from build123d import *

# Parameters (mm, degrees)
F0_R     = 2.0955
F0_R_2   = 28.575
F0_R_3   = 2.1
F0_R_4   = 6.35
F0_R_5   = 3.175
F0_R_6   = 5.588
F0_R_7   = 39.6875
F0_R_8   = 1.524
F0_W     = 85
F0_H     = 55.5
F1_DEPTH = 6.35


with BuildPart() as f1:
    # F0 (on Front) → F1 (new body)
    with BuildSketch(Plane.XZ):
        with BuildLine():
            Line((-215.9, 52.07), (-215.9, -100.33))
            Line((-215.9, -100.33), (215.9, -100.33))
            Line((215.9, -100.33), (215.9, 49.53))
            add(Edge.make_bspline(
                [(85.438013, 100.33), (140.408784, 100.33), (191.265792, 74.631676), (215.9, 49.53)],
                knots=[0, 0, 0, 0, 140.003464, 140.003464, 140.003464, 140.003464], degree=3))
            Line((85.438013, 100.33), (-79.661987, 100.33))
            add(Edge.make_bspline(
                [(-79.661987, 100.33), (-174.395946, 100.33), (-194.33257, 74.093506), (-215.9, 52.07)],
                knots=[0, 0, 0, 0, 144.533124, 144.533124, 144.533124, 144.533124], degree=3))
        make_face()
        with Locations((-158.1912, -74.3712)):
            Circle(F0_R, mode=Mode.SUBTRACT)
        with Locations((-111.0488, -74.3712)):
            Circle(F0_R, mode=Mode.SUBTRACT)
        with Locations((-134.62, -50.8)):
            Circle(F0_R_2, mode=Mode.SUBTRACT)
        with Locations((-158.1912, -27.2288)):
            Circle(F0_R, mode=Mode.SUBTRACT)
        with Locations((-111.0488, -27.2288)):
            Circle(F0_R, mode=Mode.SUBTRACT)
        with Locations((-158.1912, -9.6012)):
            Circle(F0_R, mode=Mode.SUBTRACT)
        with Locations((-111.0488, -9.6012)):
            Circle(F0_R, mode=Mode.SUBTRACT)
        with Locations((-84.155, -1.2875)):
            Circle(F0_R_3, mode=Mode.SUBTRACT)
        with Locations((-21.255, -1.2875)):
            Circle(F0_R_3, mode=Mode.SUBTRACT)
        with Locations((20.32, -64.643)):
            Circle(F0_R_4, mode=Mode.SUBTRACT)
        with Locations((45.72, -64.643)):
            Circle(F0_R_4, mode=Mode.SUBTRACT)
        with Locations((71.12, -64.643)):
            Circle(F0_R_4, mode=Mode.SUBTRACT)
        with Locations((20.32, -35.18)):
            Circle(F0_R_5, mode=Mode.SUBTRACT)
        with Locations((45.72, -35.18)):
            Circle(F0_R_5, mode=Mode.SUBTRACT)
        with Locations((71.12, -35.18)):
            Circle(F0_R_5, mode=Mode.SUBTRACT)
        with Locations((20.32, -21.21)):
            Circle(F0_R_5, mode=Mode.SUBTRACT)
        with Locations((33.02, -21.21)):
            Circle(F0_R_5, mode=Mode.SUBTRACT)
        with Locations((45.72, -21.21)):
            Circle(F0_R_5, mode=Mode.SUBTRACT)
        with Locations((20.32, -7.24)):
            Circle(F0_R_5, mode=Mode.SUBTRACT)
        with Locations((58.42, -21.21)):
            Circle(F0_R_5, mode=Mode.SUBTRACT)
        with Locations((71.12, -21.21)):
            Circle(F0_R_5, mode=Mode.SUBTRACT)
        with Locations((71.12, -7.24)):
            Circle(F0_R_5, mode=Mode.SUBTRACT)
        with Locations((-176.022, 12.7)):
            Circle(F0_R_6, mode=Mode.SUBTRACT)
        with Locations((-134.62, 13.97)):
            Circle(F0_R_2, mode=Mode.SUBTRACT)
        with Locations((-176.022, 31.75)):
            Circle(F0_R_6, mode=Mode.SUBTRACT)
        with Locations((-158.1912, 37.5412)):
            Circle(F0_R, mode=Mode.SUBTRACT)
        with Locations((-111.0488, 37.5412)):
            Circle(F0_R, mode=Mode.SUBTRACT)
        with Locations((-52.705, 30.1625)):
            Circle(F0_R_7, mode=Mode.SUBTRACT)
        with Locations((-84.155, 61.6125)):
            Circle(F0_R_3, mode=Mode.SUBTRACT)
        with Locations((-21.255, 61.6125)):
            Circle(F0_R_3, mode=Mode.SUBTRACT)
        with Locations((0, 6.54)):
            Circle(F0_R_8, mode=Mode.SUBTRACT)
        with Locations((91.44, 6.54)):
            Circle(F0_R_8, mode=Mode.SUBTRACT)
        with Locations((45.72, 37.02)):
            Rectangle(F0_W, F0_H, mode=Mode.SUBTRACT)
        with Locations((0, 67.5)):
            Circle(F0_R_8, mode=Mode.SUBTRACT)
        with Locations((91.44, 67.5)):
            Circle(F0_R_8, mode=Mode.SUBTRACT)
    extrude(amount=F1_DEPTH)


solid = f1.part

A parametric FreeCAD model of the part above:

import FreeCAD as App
import Part
import Sketcher

V = App.Vector
Q = App.Units.Quantity


def add_polygon(sketch, points):
    """Adds a closed chain of lines whose ends are joined by coincident constraints."""
    first, n = sketch.GeometryCount, len(points)
    for a, b in zip(points, points[1:] + points[:1]):
        sketch.addGeometry(Part.LineSegment(App.Vector(*a, 0), App.Vector(*b, 0)), False)
    for i in range(n):
        sketch.addConstraint(Sketcher.Constraint("Coincident", first + i, 2, first + (i + 1) % n, 1))

doc = App.newDocument("Part")
params = doc.addObject("Spreadsheet::Sheet", "Params")
for row, (alias, value) in enumerate([
    ("sketch1_diameter", "0.5 in"),
    ("sketch1_diameter2", "2.25 in"),
    ("sketch1_diameter3", "0.25 in"),
    ("sketch1_diameter4", "0.44 in"),
    ("sketch1_diameter5", "0.12 in"),
    ("pad1_length", "0.25 in"),
], start=1):
    params.set(f"A{row}", alias)
    params.set(f"B{row}", "=" + value)
    params.setAlias(f"B{row}", alias)

body = doc.addObject("PartDesign::Body", "Body")

sketch1 = doc.addObject("Sketcher::SketchObject", "Sketch")
body.addObject(sketch1)
sketch1.AttachmentSupport = (doc.XZ_Plane, [""])
sketch1.MapMode = "FlatFace"
sketch1.addGeometry(Part.LineSegment(V(-215.9, 52.07, 0), V(-215.9, -100.33, 0)), False)
sketch1.addGeometry(Part.LineSegment(V(-215.9, -100.33, 0), V(215.9, -100.33, 0)), False)
sketch1.addGeometry(Part.LineSegment(V(215.9, -100.33, 0), V(215.9, 49.53, 0)), False)
sketch1.addGeometry(Part.BSplineCurve([V(85.438013, 100.33, 0), V(140.408784, 100.33, 0), V(191.265792, 74.631676, 0), V(215.9, 49.53, 0)], [4, 4], [0, 140.003464], False, 3, [1, 1, 1, 1], False), False)
sketch1.addGeometry(Part.LineSegment(V(85.438013, 100.33, 0), V(-79.661987, 100.33, 0)), False)
sketch1.addGeometry(Part.BSplineCurve([V(-79.661987, 100.33, 0), V(-174.395946, 100.33, 0), V(-194.33257, 74.093506, 0), V(-215.9, 52.07, 0)], [4, 4], [0, 144.533124], False, 3, [1, 1, 1, 1], False), False)
sketch1.addGeometry(Part.Circle(V(-158.1912, -74.3712, 0), V(0, 0, 1), 2.0955), False)
sketch1.addGeometry(Part.Circle(V(-134.62, -50.8, 0), V(0, 0, 1), 28.575), False)
sketch1.addGeometry(Part.Circle(V(-111.0488, -74.3712, 0), V(0, 0, 1), 2.0955), False)
sketch1.addGeometry(Part.Circle(V(-158.1912, -27.2288, 0), V(0, 0, 1), 2.0955), False)
sketch1.addGeometry(Part.Circle(V(-158.1912, -9.6012, 0), V(0, 0, 1), 2.0955), False)
sketch1.addGeometry(Part.Circle(V(-111.0488, -27.2288, 0), V(0, 0, 1), 2.0955), False)
sketch1.addGeometry(Part.Circle(V(-111.0488, -9.6012, 0), V(0, 0, 1), 2.0955), False)
sketch1.addGeometry(Part.Circle(V(20.32, -64.643, 0), V(0, 0, 1), 6.35), False)
sketch1.addGeometry(Part.Circle(V(45.72, -64.643, 0), V(0, 0, 1), 6.35), False)
sketch1.addGeometry(Part.Circle(V(71.12, -64.643, 0), V(0, 0, 1), 6.35), False)
sketch1.addGeometry(Part.Circle(V(20.32, -35.18, 0), V(0, 0, 1), 3.175), False)
sketch1.addGeometry(Part.Circle(V(20.32, -21.21, 0), V(0, 0, 1), 3.175), False)
sketch1.addGeometry(Part.Circle(V(20.32, -7.24, 0), V(0, 0, 1), 3.175), False)
sketch1.addGeometry(Part.Circle(V(45.72, -35.18, 0), V(0, 0, 1), 3.175), False)
sketch1.addGeometry(Part.Circle(V(71.12, -35.18, 0), V(0, 0, 1), 3.175), False)
sketch1.addGeometry(Part.Circle(V(33.02, -21.21, 0), V(0, 0, 1), 3.175), False)
sketch1.addGeometry(Part.Circle(V(45.72, -21.21, 0), V(0, 0, 1), 3.175), False)
sketch1.addGeometry(Part.Circle(V(58.42, -21.21, 0), V(0, 0, 1), 3.175), False)
sketch1.addGeometry(Part.Circle(V(71.12, -21.21, 0), V(0, 0, 1), 3.175), False)
sketch1.addGeometry(Part.Circle(V(71.12, -7.24, 0), V(0, 0, 1), 3.175), False)
sketch1.addGeometry(Part.Circle(V(-176.022, 12.7, 0), V(0, 0, 1), 5.588), False)
sketch1.addGeometry(Part.Circle(V(-176.022, 31.75, 0), V(0, 0, 1), 5.588), False)
sketch1.addGeometry(Part.Circle(V(-134.62, 13.97, 0), V(0, 0, 1), 28.575), False)
sketch1.addGeometry(Part.Circle(V(-84.155, -1.2875, 0), V(0, 0, 1), 2.1), False)
sketch1.addGeometry(Part.Circle(V(-52.705, 30.1625, 0), V(0, 0, 1), 39.6875), False)
sketch1.addGeometry(Part.Circle(V(-158.1912, 37.5412, 0), V(0, 0, 1), 2.0955), False)
sketch1.addGeometry(Part.Circle(V(-111.0488, 37.5412, 0), V(0, 0, 1), 2.0955), False)
sketch1.addGeometry(Part.Circle(V(-84.155, 61.6125, 0), V(0, 0, 1), 2.1), False)
sketch1.addGeometry(Part.Circle(V(-21.255, -1.2875, 0), V(0, 0, 1), 2.1), False)
sketch1.addGeometry(Part.Circle(V(0, 6.54, 0), V(0, 0, 1), 1.524), False)
sketch1.addGeometry(Part.Circle(V(91.44, 6.54, 0), V(0, 0, 1), 1.524), False)
sketch1.addGeometry(Part.Circle(V(-21.255, 61.6125, 0), V(0, 0, 1), 2.1), False)
sketch1.addGeometry(Part.Circle(V(0, 67.5, 0), V(0, 0, 1), 1.524), False)
add_polygon(sketch1, [(88.22, 9.27), (3.22, 9.27), (3.22, 64.77), (88.22, 64.77)])
sketch1.addGeometry(Part.Circle(V(91.44, 67.5, 0), V(0, 0, 1), 1.524), False)
sketch1.addConstraint(Sketcher.Constraint("Block", 3))
sketch1.addConstraint(Sketcher.Constraint("Block", 5))
sketch1.addConstraint(Sketcher.Constraint("Coincident", 0, 2, 1, 1))
sketch1.addConstraint(Sketcher.Constraint("Coincident", 1, 2, 2, 1))
sketch1.addConstraint(Sketcher.Constraint("Coincident", 2, 2, 3, 2))
sketch1.addConstraint(Sketcher.Constraint("Coincident", 3, 1, 4, 1))
sketch1.addConstraint(Sketcher.Constraint("Coincident", 4, 2, 5, 1))
sketch1.addConstraint(Sketcher.Constraint("Coincident", 5, 2, 0, 1))
sketch1.addConstraint(Sketcher.Constraint("Vertical", 0))
sketch1.addConstraint(Sketcher.Constraint("Horizontal", 1))
sketch1.addConstraint(Sketcher.Constraint("Vertical", 2))
sketch1.addConstraint(Sketcher.Constraint("Horizontal", 39))
sketch1.addConstraint(Sketcher.Constraint("Vertical", 40))
sketch1.addConstraint(Sketcher.Constraint("Horizontal", 41))
sketch1.addConstraint(Sketcher.Constraint("Vertical", 42))
sketch1.addConstraint(Sketcher.Constraint("Equal", 6, 8))
sketch1.addConstraint(Sketcher.Constraint("Equal", 8, 9))
sketch1.addConstraint(Sketcher.Constraint("Equal", 9, 10))
sketch1.addConstraint(Sketcher.Constraint("Equal", 10, 11))
sketch1.addConstraint(Sketcher.Constraint("Equal", 11, 12))
sketch1.addConstraint(Sketcher.Constraint("Equal", 13, 14))
sketch1.addConstraint(Sketcher.Constraint("Equal", 14, 15))
sketch1.addConstraint(Sketcher.Constraint("Equal", 16, 17))
sketch1.addConstraint(Sketcher.Constraint("Equal", 17, 18))
sketch1.addConstraint(Sketcher.Constraint("Equal", 18, 19))
sketch1.addConstraint(Sketcher.Constraint("Equal", 19, 20))
sketch1.addConstraint(Sketcher.Constraint("Equal", 20, 21))
sketch1.addConstraint(Sketcher.Constraint("Equal", 21, 22))
sketch1.addConstraint(Sketcher.Constraint("Equal", 22, 23))
sketch1.addConstraint(Sketcher.Constraint("Equal", 23, 24))
sketch1.addConstraint(Sketcher.Constraint("Equal", 24, 25))
sketch1.addConstraint(Sketcher.Constraint("Equal", 26, 27))
sketch1.addConstraint(Sketcher.Constraint("Equal", 7, 28))
sketch1.addConstraint(Sketcher.Constraint("Equal", 12, 31))
sketch1.addConstraint(Sketcher.Constraint("Equal", 31, 32))
sketch1.addConstraint(Sketcher.Constraint("Equal", 29, 33))
sketch1.addConstraint(Sketcher.Constraint("Equal", 33, 34))
sketch1.addConstraint(Sketcher.Constraint("Equal", 35, 36))
sketch1.addConstraint(Sketcher.Constraint("Equal", 34, 37))
sketch1.addConstraint(Sketcher.Constraint("Equal", 36, 38))
sketch1.addConstraint(Sketcher.Constraint("Equal", 38, 43))
sketch1.addConstraint(Sketcher.Constraint("PointOnObject", 35, 3, -2))
sketch1.addConstraint(Sketcher.Constraint("PointOnObject", 38, 3, -2))
sketch1.addConstraint(Sketcher.Constraint("Horizontal", 6, 3, 8, 3))
sketch1.addConstraint(Sketcher.Constraint("Horizontal", 9, 3, 11, 3))
sketch1.addConstraint(Sketcher.Constraint("Horizontal", 10, 3, 12, 3))
sketch1.addConstraint(Sketcher.Constraint("Horizontal", 13, 3, 14, 3))
sketch1.addConstraint(Sketcher.Constraint("Horizontal", 14, 3, 15, 3))
sketch1.addConstraint(Sketcher.Constraint("Horizontal", 16, 3, 19, 3))
sketch1.addConstraint(Sketcher.Constraint("Horizontal", 19, 3, 20, 3))
sketch1.addConstraint(Sketcher.Constraint("Horizontal", 17, 3, 21, 3))
sketch1.addConstraint(Sketcher.Constraint("Horizontal", 21, 3, 22, 3))
sketch1.addConstraint(Sketcher.Constraint("Horizontal", 22, 3, 23, 3))
sketch1.addConstraint(Sketcher.Constraint("Horizontal", 23, 3, 24, 3))
sketch1.addConstraint(Sketcher.Constraint("Horizontal", 18, 3, 25, 3))
sketch1.addConstraint(Sketcher.Constraint("Horizontal", 31, 3, 32, 3))
sketch1.addConstraint(Sketcher.Constraint("Horizontal", 29, 3, 34, 3))
sketch1.addConstraint(Sketcher.Constraint("Horizontal", 35, 3, 36, 3))
sketch1.addConstraint(Sketcher.Constraint("Horizontal", 33, 3, 37, 3))
sketch1.addConstraint(Sketcher.Constraint("Horizontal", 38, 3, 43, 3))
sketch1.addConstraint(Sketcher.Constraint("Vertical", 6, 3, 9, 3))
sketch1.addConstraint(Sketcher.Constraint("Vertical", 9, 3, 10, 3))
sketch1.addConstraint(Sketcher.Constraint("Vertical", 8, 3, 11, 3))
sketch1.addConstraint(Sketcher.Constraint("Vertical", 11, 3, 12, 3))
sketch1.addConstraint(Sketcher.Constraint("Vertical", 13, 3, 16, 3))
sketch1.addConstraint(Sketcher.Constraint("Vertical", 16, 3, 17, 3))
sketch1.addConstraint(Sketcher.Constraint("Vertical", 17, 3, 18, 3))
sketch1.addConstraint(Sketcher.Constraint("Vertical", 14, 3, 19, 3))
sketch1.addConstraint(Sketcher.Constraint("Vertical", 15, 3, 20, 3))
sketch1.addConstraint(Sketcher.Constraint("Vertical", 19, 3, 22, 3))
sketch1.addConstraint(Sketcher.Constraint("Vertical", 20, 3, 24, 3))
sketch1.addConstraint(Sketcher.Constraint("Vertical", 24, 3, 25, 3))
sketch1.addConstraint(Sketcher.Constraint("Vertical", 26, 3, 27, 3))
sketch1.addConstraint(Sketcher.Constraint("Vertical", 7, 3, 28, 3))
sketch1.addConstraint(Sketcher.Constraint("Vertical", 10, 3, 31, 3))
sketch1.addConstraint(Sketcher.Constraint("Vertical", 12, 3, 32, 3))
sketch1.addConstraint(Sketcher.Constraint("Vertical", 29, 3, 33, 3))
sketch1.addConstraint(Sketcher.Constraint("Vertical", 34, 3, 37, 3))
sketch1.addConstraint(Sketcher.Constraint("Vertical", 36, 3, 43, 3))
sketch1.addConstraint(Sketcher.Constraint("Diameter", 13, Q("0.5 in")))
sketch1.addConstraint(Sketcher.Constraint("Diameter", 7, Q("2.25 in")))
sketch1.addConstraint(Sketcher.Constraint("Diameter", 16, Q("0.25 in")))
sketch1.addConstraint(Sketcher.Constraint("Diameter", 26, Q("0.44 in")))
sketch1.addConstraint(Sketcher.Constraint("Diameter", 35, Q("0.12 in")))
sketch1.addConstraint(Sketcher.Constraint("DistanceY", 0, 2, 0, 1, Q("6 in")))
sketch1.addConstraint(Sketcher.Constraint("Diameter", 6, Q("0.165 in")))
sketch1.addConstraint(Sketcher.Constraint("Diameter", 30, Q("3.125 in")))
sketch1.addConstraint(Sketcher.Constraint("DistanceY", 7, 3, -1, 1, Q("2 in")))
sketch1.addConstraint(Sketcher.Constraint("DistanceX", 13, 3, 14, 3, Q("1 in")))
sketch1.addConstraint(Sketcher.Constraint("DistanceX", 14, 3, 15, 3, Q("1 in")))
sketch1.addConstraint(Sketcher.Constraint("DistanceX", 21, 3, 23, 3, Q("1 in")))
sketch1.addConstraint(Sketcher.Constraint("DistanceX", 7, 3, -1, 1, Q("5.3 in")))
sketch1.addConstraint(Sketcher.Constraint("DistanceX", -1, 1, 13, 3, Q("0.8 in")))
sketch1.addConstraint(Sketcher.Constraint("DistanceX", -1, 1, 21, 3, Q("1.3 in")))
sketch1.addConstraint(Sketcher.Constraint("DistanceY", -1, 1, 26, 3, Q("0.5 in")))
sketch1.addConstraint(Sketcher.Constraint("DistanceX", -1, 1, 36, 3, Q("3.6 in")))
sketch1.addConstraint(Sketcher.Constraint("DistanceY", 16, 3, 18, 3, Q("1.1 in")))
sketch1.addConstraint(Sketcher.Constraint("DistanceY", 28, 3, 27, 3, Q("0.7 in")))
sketch1.addConstraint(Sketcher.Constraint("DistanceY", 35, 3, 38, 3, Q("2.4 in")))
sketch1.addConstraint(Sketcher.Constraint("DistanceY", 17, 3, 39, 2, Q("1.2 in")))
sketch1.addConstraint(Sketcher.Constraint("Diameter", 29, Q("4.2 mm")))
sketch1.addConstraint(Sketcher.Constraint("DistanceX", 26, 3, -1, 1, Q("6.93 in")))
sketch1.addConstraint(Sketcher.Constraint("DistanceY", -1, 1, 27, 3, Q("1.25 in")))
sketch1.addConstraint(Sketcher.Constraint("DistanceY", -1, 1, 40, 2, Q("2.55 in")))
sketch1.addConstraint(Sketcher.Constraint("DistanceY", 6, 3, 10, 3, Q("2.55 in")))
sketch1.addConstraint(Sketcher.Constraint("DistanceY", 16, 3, 17, 3, Q("0.55 in")))
sketch1.addConstraint(Sketcher.Constraint("DistanceY", 9, 3, 31, 3, Q("2.55 in")))
sketch1.addConstraint(Sketcher.Constraint("DistanceX", 6, 3, -1, 1, Q("6.228 in")))
sketch1.addConstraint(Sketcher.Constraint("DistanceY", 6, 3, -1, 1, Q("2.928 in")))
sketch1.addConstraint(Sketcher.Constraint("DistanceX", 8, 3, -1, 1, Q("4.372 in")))
sketch1.addConstraint(Sketcher.Constraint("DistanceY", 9, 3, -1, 1, Q("1.072 in")))
sketch1.addConstraint(Sketcher.Constraint("DistanceY", 13, 3, -1, 1, Q("2.545 in")))
sketch1.addConstraint(Sketcher.Constraint("DistanceX", 30, 3, -1, 1, Q("2.075 in")))
sketch1.addConstraint(Sketcher.Constraint("DistanceY", -1, 1, 30, 3, Q("1.1875 in")))
sketch1.addConstraint(Sketcher.Constraint("DistanceX", 39, 2, 39, 1, Q("85 mm")))
sketch1.addConstraint(Sketcher.Constraint("DistanceY", 40, 1, 40, 2, Q("55.5 mm")))
sketch1.addConstraint(Sketcher.Constraint("DistanceX", 29, 3, -1, 1, Q("84.155 mm")))
sketch1.addConstraint(Sketcher.Constraint("DistanceY", 29, 3, -1, 1, Q("1.2875 mm")))
sketch1.addConstraint(Sketcher.Constraint("DistanceY", -1, 1, 33, 3, Q("61.6125 mm")))
sketch1.addConstraint(Sketcher.Constraint("DistanceX", 34, 3, -1, 1, Q("21.255 mm")))
sketch1.addConstraint(Sketcher.Constraint("DistanceY", -1, 1, 35, 3, Q("6.54 mm")))
sketch1.addConstraint(Sketcher.Constraint("DistanceX", -1, 1, 39, 2, Q("3.22 mm")))
sketch1.setExpression("Constraints[83]", "Params.sketch1_diameter")
sketch1.setExpression("Constraints[84]", "Params.sketch1_diameter2")
sketch1.setExpression("Constraints[85]", "Params.sketch1_diameter3")
sketch1.setExpression("Constraints[86]", "Params.sketch1_diameter4")
sketch1.setExpression("Constraints[87]", "Params.sketch1_diameter5")
pad1 = doc.addObject("PartDesign::Pad", "Pad")
body.addObject(pad1)
pad1.Profile = sketch1
pad1.setExpression("Length", "Params.pad1_length")

doc.recompute()
